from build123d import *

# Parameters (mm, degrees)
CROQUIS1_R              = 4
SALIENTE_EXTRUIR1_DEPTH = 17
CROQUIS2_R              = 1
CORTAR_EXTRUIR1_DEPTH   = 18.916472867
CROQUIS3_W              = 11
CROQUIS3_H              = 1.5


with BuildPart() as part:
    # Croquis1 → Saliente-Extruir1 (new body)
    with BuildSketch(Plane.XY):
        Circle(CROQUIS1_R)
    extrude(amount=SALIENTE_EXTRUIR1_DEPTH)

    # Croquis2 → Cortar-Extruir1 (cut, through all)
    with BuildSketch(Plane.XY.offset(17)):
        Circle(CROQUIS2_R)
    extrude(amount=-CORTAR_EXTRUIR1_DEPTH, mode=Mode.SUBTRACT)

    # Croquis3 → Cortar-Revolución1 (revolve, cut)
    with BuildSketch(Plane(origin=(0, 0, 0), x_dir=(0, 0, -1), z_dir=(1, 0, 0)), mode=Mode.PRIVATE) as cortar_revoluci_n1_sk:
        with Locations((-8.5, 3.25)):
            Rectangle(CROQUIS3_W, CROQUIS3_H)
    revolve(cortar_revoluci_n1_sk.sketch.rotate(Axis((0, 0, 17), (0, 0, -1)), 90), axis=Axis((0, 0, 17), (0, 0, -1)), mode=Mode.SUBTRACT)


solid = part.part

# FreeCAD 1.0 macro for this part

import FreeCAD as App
import Part
import Sketcher

V = App.Vector
Q = App.Units.Quantity

doc = App.newDocument("Part")
params = doc.addObject("Spreadsheet::Sheet", "Params")
for row, (alias, value) in enumerate([
    ("sketch1_diameter", "8 mm"),
    ("pad1_length", "17 mm"),
    ("sketch2_diameter", "2 mm"),
    ("sketch3_height", "11 mm"),
    ("sketch3_width", "1.5 mm"),
    ("groove_angle", "360 deg"),
], start=1):
    params.set(f"A{row}", alias)
    params.set(f"B{row}", "=" + value)
    params.setAlias(f"B{row}", alias)

body = doc.addObject("PartDesign::Body", "Body")

sketch1 = body.newObject("Sketcher::SketchObject", "Sketch")
sketch1.AttachmentSupport = (doc.getObject("XY_Plane"), [""])
sketch1.MapMode = "FlatFace"
sketch1.addGeometry(Part.Circle(V(0, 0, 0), V(0, 0, 1), 4), False)
sketch1.addConstraint(Sketcher.Constraint("Coincident", 0, 3, -1, 1))
sketch1.addConstraint(Sketcher.Constraint("Diameter", 0, Q("8 mm")))
sketch1.setExpression("Constraints[1]", "Params.sketch1_diameter")
pad1 = body.newObject("PartDesign::Pad", "Pad")
pad1.Profile = sketch1
pad1.setExpression("Length", "Params.pad1_length")

sketch2 = body.newObject("Sketcher::SketchObject", "Sketch001")
sketch2.AttachmentSupport = (doc.getObject("XY_Plane"), [""])
sketch2.MapMode = "FlatFace"
sketch2.AttachmentOffset = App.Placement(V(0, 0, 17), App.Rotation())
sketch2.addGeometry(Part.Circle(V(0, 0, 0), V(0, 0, 1), 1), False)
sketch2.addConstraint(Sketcher.Constraint("Coincident", 0, 3, -1, 1))
sketch2.addConstraint(Sketcher.Constraint("Diameter", 0, Q("2 mm")))
sketch2.setExpression("Constraints[1]", "Params.sketch2_diameter")
pocket1 = body.newObject("PartDesign::Pocket", "Pocket")
pocket1.Profile = sketch2
pocket1.Type = "ThroughAll"

sketch3 = body.newObject("Sketcher::SketchObject", "Sketch002")
sketch3.AttachmentSupport = (doc.getObject("YZ_Plane"), [""])
sketch3.MapMode = "FlatFace"
sketch3.addGeometry(Part.LineSegment(V(4, 14, 0), V(2.5, 14, 0)), False)
sketch3.addGeometry(Part.LineSegment(V(2.5, 14, 0), V(2.5, 3, 0)), False)
sketch3.addGeometry(Part.LineSegment(V(2.5, 3, 0), V(4, 3, 0)), False)
sketch3.addGeometry(Part.LineSegment(V(4, 3, 0), V(4, 14, 0)), False)
sketch3.addConstraint(Sketcher.Constraint("Coincident", 0, 2, 1, 1))
sketch3.addConstraint(Sketcher.Constraint("Coincident", 1, 2, 2, 1))
sketch3.addConstraint(Sketcher.Constraint("Coincident", 2, 2, 3, 1))
sketch3.addConstraint(Sketcher.Constraint("Coincident", 3, 2, 0, 1))
sketch3.addConstraint(Sketcher.Constraint("Horizontal", 0))
sketch3.addConstraint(Sketcher.Constraint("Vertical", 1))
sketch3.addConstraint(Sketcher.Constraint("Horizontal", 2))
sketch3.addConstraint(Sketcher.Constraint("Vertical", 3))
sketch3.addConstraint(Sketcher.Constraint("DistanceY", 1, 2, 1, 1, Q("11 mm")))
sketch3.addConstraint(Sketcher.Constraint("DistanceX", 0, 2, 0, 1, Q("1.5 mm")))
sketch3.addConstraint(Sketcher.Constraint("DistanceY", -1, 1, 0, 2, Q("14 mm")))
sketch3.addConstraint(Sketcher.Constraint("DistanceX", -1, 1, 2, 2, Q("4 mm")))
sketch3.setExpression("Constraints[8]", "Params.sketch3_height")
sketch3.setExpression("Constraints[9]", "Params.sketch3_width")
groove = body.newObject("PartDesign::Groove", "Groove")
groove.Profile = sketch3
groove.ReferenceAxis = (sketch3, ["V_Axis"])
groove.setExpression("Angle", "Params.groove_angle")

doc.recompute()
